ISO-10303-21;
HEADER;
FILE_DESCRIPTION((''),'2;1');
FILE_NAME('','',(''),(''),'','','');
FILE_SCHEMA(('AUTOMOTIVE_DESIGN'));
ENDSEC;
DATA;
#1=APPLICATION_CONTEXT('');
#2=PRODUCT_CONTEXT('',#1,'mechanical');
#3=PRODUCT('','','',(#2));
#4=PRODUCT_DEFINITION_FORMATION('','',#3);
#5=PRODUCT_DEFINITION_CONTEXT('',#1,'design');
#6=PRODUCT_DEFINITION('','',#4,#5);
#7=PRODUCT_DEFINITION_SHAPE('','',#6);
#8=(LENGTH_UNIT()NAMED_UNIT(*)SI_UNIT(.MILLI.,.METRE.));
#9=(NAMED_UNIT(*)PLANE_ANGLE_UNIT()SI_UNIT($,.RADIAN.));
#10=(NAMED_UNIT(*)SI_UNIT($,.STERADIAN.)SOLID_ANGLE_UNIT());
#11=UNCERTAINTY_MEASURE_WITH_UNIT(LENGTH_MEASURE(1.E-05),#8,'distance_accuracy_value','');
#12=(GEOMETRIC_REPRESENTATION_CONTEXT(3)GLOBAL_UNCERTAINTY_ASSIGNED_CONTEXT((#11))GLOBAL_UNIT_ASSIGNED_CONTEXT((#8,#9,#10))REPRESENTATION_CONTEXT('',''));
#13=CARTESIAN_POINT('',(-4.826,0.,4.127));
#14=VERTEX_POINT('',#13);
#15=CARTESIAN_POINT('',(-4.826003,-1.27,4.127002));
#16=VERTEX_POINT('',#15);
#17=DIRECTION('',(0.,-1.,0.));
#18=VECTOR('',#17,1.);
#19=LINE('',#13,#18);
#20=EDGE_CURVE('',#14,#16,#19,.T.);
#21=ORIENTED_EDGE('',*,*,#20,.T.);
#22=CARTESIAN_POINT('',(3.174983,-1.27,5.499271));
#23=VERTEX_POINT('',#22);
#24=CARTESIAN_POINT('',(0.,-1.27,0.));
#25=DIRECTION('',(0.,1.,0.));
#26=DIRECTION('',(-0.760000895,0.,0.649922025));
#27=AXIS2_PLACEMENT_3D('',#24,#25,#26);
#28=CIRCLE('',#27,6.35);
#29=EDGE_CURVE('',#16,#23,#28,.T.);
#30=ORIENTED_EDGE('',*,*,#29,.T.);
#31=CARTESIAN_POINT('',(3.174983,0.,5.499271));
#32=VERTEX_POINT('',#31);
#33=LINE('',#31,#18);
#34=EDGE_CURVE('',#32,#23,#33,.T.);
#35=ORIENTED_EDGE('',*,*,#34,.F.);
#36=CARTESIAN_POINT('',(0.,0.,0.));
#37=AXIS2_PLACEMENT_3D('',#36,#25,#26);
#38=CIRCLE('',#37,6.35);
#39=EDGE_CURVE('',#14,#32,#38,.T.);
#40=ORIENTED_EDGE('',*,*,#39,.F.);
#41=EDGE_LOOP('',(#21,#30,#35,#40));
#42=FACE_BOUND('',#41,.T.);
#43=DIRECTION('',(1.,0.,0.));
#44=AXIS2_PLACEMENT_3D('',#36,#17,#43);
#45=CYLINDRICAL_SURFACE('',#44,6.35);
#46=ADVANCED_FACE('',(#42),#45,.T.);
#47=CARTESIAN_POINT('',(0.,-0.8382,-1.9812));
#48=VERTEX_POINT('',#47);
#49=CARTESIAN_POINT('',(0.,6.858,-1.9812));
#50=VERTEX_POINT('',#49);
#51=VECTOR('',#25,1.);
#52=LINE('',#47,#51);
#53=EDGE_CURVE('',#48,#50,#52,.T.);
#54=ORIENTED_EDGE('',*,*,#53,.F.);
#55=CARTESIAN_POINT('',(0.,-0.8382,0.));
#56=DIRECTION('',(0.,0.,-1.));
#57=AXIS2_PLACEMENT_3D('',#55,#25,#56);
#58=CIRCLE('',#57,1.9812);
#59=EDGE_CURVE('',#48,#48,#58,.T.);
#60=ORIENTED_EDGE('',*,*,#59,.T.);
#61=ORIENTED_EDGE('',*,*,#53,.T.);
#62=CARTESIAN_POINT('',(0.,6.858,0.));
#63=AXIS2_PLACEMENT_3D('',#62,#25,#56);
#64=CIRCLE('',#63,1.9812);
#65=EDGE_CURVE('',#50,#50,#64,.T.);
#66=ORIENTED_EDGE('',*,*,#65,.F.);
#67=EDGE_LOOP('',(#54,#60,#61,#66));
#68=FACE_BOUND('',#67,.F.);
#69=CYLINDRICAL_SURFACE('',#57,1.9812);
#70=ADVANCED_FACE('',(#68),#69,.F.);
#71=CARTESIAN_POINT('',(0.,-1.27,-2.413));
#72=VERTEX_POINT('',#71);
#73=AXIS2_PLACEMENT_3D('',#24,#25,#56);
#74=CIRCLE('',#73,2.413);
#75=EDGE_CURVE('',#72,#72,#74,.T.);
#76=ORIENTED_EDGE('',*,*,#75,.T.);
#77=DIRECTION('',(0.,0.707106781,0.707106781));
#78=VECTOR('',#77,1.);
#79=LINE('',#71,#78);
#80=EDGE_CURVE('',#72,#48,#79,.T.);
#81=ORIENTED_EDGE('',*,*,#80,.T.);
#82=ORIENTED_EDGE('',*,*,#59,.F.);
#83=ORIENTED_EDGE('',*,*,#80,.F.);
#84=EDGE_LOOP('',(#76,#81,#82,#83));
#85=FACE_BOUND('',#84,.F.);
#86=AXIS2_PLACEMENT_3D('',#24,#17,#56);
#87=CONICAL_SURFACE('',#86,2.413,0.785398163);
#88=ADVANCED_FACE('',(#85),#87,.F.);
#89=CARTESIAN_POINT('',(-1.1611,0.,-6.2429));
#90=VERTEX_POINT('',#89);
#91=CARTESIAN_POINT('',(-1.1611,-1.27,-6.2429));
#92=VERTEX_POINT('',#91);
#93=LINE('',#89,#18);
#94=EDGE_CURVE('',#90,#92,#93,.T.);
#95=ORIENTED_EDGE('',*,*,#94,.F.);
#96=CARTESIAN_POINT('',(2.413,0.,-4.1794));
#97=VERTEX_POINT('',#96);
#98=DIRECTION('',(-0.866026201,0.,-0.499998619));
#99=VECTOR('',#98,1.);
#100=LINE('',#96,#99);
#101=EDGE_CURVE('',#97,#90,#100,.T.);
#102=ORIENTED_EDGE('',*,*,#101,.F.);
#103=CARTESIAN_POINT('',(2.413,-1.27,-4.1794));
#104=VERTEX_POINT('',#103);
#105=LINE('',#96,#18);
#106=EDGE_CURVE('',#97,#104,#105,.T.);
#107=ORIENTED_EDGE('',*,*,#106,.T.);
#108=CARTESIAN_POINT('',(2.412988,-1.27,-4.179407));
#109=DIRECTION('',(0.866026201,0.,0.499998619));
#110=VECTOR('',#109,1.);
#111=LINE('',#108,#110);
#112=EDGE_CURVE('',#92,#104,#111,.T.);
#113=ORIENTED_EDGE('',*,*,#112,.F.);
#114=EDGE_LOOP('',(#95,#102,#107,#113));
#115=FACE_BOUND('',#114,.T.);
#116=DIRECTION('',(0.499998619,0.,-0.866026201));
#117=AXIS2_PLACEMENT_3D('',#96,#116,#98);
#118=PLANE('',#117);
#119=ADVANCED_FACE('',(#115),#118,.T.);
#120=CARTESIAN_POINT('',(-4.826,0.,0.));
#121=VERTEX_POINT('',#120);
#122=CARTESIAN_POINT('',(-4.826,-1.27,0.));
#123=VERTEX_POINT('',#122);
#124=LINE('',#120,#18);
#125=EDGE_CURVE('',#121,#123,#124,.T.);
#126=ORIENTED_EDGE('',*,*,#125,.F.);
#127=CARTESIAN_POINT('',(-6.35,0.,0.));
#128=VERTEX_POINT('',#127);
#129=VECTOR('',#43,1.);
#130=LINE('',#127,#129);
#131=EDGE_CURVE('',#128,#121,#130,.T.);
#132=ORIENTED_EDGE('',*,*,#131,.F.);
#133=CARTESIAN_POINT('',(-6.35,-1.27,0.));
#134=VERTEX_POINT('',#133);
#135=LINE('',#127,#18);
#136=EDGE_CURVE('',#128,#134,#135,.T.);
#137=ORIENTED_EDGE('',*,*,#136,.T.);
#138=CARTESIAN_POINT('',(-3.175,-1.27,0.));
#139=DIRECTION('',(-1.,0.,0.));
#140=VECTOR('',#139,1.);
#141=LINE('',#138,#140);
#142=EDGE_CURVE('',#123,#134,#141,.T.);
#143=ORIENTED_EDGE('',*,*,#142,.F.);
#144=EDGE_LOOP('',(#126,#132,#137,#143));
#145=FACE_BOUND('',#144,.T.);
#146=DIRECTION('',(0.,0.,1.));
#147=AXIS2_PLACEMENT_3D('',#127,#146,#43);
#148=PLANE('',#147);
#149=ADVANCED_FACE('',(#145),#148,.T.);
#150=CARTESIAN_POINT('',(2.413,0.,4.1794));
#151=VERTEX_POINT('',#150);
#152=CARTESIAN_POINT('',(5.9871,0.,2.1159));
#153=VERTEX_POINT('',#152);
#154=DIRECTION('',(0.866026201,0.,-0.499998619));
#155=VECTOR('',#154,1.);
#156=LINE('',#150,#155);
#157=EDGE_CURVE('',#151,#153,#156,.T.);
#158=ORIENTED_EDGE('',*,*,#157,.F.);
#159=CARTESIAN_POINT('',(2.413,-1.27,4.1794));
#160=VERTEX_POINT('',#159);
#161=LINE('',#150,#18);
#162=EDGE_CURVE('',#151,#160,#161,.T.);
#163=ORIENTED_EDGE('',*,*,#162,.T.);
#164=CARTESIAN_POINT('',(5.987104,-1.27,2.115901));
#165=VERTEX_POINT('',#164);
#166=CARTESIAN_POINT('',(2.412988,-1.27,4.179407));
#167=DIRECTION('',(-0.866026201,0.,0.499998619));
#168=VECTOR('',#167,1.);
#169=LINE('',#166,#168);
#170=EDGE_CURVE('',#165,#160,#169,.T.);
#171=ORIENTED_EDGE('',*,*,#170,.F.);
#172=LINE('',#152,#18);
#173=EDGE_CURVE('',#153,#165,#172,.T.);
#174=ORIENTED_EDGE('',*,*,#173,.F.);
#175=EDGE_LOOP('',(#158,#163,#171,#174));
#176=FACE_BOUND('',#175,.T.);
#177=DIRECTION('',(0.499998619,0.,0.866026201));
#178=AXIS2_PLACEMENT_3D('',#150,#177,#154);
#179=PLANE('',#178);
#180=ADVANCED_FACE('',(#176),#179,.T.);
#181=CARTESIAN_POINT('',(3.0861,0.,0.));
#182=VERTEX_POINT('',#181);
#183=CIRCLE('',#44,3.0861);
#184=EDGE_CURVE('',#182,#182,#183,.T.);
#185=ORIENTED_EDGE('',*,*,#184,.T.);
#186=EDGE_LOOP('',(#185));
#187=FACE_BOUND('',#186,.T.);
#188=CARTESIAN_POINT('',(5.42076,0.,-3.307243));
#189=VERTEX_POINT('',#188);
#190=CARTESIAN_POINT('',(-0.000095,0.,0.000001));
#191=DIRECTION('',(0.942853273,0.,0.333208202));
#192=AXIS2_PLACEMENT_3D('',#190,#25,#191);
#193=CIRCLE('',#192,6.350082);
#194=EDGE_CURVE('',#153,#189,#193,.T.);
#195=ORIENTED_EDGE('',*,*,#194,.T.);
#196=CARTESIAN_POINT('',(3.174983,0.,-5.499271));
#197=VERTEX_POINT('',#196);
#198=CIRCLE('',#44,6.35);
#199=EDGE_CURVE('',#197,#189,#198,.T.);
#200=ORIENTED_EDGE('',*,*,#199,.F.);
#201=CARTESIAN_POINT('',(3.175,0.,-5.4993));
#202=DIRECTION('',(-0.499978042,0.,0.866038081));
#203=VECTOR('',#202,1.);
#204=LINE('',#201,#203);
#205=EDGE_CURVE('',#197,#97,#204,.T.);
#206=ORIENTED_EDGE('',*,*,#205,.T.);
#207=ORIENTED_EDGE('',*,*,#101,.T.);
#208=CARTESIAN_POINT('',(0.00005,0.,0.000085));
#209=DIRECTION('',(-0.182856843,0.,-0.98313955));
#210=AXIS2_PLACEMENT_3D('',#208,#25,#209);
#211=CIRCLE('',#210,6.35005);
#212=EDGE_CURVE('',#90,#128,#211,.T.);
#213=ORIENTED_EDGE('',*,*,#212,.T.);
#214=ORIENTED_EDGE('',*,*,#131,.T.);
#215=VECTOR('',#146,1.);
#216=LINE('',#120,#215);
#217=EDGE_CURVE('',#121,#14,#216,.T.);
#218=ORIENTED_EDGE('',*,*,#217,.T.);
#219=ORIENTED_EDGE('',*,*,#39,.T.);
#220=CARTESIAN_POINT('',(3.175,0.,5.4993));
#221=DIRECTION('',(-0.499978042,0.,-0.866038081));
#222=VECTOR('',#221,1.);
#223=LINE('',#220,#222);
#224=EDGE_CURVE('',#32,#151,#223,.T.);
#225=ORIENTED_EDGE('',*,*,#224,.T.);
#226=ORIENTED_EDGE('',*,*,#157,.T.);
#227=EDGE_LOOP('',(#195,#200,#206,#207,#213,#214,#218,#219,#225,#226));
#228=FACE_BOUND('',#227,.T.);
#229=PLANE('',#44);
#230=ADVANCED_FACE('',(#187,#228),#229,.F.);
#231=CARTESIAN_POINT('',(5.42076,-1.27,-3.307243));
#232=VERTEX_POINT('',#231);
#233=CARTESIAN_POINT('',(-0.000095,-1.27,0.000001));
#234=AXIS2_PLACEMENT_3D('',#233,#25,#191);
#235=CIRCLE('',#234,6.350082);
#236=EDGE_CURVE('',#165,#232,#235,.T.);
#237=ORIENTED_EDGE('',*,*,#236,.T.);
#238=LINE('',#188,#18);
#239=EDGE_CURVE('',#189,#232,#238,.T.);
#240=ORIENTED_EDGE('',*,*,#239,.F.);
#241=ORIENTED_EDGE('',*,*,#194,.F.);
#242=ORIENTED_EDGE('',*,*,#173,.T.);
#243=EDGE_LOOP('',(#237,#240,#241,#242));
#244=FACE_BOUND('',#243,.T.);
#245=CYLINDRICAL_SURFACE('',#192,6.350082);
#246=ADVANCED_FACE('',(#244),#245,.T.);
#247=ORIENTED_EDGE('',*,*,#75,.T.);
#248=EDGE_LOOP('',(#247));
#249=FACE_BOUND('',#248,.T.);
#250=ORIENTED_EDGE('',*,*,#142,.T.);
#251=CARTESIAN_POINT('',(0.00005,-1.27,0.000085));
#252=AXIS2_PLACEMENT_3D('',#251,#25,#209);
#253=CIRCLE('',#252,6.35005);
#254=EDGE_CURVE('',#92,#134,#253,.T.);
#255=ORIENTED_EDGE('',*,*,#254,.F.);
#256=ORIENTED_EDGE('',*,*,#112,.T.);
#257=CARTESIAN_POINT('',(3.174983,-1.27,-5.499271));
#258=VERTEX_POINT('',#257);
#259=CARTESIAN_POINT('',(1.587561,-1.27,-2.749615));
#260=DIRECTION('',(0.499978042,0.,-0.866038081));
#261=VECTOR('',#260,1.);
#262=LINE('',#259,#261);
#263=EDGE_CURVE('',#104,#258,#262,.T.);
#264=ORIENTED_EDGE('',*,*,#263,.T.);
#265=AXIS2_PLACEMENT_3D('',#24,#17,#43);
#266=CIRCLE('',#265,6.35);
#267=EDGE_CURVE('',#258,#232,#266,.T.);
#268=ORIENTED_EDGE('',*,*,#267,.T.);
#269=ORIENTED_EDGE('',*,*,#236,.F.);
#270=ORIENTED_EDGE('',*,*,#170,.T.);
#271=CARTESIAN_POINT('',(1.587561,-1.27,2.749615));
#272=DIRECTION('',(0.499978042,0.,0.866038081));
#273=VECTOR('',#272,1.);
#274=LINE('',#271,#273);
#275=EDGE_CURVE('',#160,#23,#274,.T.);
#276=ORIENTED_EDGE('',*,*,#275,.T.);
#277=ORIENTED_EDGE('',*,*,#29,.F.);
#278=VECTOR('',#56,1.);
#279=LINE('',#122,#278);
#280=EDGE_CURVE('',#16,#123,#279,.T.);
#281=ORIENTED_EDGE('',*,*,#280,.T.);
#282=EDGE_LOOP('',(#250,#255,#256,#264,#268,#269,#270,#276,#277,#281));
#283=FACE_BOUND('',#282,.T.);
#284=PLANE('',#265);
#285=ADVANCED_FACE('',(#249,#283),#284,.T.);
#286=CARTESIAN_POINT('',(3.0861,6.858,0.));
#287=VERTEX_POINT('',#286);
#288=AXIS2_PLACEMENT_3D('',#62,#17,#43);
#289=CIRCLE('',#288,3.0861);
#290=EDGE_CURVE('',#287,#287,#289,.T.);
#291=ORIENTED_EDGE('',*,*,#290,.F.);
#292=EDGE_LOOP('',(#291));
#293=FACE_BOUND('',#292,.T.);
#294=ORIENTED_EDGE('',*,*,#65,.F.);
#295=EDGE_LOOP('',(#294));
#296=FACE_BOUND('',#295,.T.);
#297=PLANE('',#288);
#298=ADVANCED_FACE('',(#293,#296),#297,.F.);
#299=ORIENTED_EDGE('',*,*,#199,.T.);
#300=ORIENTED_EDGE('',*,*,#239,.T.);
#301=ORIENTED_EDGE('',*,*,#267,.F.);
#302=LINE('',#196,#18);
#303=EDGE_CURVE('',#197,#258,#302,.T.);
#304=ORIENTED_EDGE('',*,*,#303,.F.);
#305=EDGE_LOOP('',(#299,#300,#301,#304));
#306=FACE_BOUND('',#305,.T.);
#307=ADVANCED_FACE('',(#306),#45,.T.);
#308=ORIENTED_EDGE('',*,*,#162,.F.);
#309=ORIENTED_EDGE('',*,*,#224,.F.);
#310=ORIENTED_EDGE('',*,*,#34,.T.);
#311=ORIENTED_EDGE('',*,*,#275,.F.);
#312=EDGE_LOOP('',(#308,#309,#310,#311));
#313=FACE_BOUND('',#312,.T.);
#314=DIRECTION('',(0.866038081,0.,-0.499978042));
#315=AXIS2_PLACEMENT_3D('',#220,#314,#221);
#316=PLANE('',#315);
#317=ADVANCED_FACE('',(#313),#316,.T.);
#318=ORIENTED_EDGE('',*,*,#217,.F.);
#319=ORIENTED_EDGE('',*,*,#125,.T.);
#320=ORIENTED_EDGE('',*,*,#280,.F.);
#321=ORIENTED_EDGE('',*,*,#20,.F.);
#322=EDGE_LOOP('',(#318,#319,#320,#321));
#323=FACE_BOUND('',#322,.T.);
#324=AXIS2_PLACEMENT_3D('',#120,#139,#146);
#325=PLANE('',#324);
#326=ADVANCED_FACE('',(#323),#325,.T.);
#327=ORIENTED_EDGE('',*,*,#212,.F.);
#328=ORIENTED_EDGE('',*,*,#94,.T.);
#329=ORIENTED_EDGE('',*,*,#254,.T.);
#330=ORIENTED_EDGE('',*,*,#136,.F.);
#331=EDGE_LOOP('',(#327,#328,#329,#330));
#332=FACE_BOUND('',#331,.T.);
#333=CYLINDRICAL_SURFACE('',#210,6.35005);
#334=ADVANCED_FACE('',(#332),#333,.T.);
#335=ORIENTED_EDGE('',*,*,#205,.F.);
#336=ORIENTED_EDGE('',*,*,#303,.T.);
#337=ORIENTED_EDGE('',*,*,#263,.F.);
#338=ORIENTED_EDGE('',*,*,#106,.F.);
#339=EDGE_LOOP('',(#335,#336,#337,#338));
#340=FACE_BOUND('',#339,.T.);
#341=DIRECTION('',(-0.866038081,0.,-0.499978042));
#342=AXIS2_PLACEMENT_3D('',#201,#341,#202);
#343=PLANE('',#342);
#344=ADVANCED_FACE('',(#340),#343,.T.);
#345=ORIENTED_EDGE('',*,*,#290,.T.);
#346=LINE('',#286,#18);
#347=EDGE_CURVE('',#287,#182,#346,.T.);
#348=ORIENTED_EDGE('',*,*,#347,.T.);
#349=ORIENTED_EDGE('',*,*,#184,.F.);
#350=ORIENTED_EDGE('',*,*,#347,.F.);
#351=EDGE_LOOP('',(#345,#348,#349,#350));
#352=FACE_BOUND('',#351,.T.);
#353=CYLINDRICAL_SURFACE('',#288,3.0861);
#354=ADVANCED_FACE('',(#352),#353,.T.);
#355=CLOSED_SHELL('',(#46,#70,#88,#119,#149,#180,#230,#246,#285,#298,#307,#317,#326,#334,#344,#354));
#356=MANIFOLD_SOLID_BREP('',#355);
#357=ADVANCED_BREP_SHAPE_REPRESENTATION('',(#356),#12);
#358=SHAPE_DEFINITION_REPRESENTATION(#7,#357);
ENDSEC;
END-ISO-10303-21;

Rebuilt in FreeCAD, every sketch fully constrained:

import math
import FreeCAD as App
import Part
import Sketcher
Q = App.Units.Quantity

doc = App.newDocument("Part")
body = doc.addObject("PartDesign::Body", "Body")

sketch1 = body.newObject("Sketcher::SketchObject", "Sketch")
sketch1.AttachmentSupport = (doc.getObject("XY_Plane"), [""])
sketch1.MapMode = "FlatFace"
sketch1.addGeometry([
    Part.LineSegment(App.Vector(0, 6.9, 0), App.Vector(0, -1.3, 0)),
    Part.LineSegment(App.Vector(0, -1.3, 0), App.Vector(6.3, -1.3, 0)),
    Part.LineSegment(App.Vector(6.3, -1.3, 0), App.Vector(6.3, 0, 0)),
    Part.LineSegment(App.Vector(6.3, 0, 0), App.Vector(3.1, 0, 0)),
    Part.LineSegment(App.Vector(3.1, 0, 0), App.Vector(3.1, 6.9, 0)),
    Part.LineSegment(App.Vector(3.1, 6.9, 0), App.Vector(0, 6.9, 0)),
], False)
sketch1.addConstraint([
    Sketcher.Constraint("Coincident", 0, 2, 1, 1),
    Sketcher.Constraint("Coincident", 1, 2, 2, 1),
    Sketcher.Constraint("Coincident", 2, 2, 3, 1),
    Sketcher.Constraint("Coincident", 3, 2, 4, 1),
    Sketcher.Constraint("Coincident", 4, 2, 5, 1),
    Sketcher.Constraint("Coincident", 5, 2, 0, 1),
    Sketcher.Constraint("Vertical", 0),
    Sketcher.Constraint("Horizontal", 1),
    Sketcher.Constraint("Vertical", 2),
    Sketcher.Constraint("Horizontal", 3),
    Sketcher.Constraint("Vertical", 4),
    Sketcher.Constraint("Horizontal", 5),
    Sketcher.Constraint("PointOnObject", 0, 2, -2),
    Sketcher.Constraint("PointOnObject", 2, 2, -1),
    Sketcher.Constraint("DistanceX", 1, 1, 1, 2, Q("0.25 in")),
    Sketcher.Constraint("DistanceY", 0, 2, 0, 1, Q("0.32 in")),
    Sketcher.Constraint("DistanceY", 2, 1, 2, 2, Q("0.05 in")),
    Sketcher.Constraint("DistanceX", 3, 2, 3, 1, Q("0.1285 in")),
])
revolution = body.newObject("PartDesign::Revolution", "Revolution")
revolution.Profile = sketch1
revolution.ReferenceAxis = (sketch1, ["V_Axis"])
revolution.Angle = 360

sketch2 = body.newObject("Sketcher::SketchObject", "Sketch001")
sketch2.AttachmentSupport = (doc.getObject("XZ_Plane"), [""])
sketch2.MapMode = "FlatFace"
sketch2.AttachmentOffset = App.Placement(App.Vector(0, 0, 0.05 * 25.4), App.Rotation())
sketch2.addGeometry(Part.Circle(App.Vector(0, 0, 0), App.Vector(0, 0, 1), 2), False)
sketch2.addConstraint([
    Sketcher.Constraint("Coincident", 0, 3, -1, 1),
    Sketcher.Constraint("Diameter", 0, Q("0.156 in")),
])
doc.recompute()
hole = body.newObject("PartDesign::Hole", "Hole")
hole.Profile = sketch2
hole.ThreadType = "None"
hole.Diameter = Q("0.156 in")
hole.DepthType = "Dimension"
hole.Depth = Q("0.32 in")
hole.DrillPoint = "Flat"
hole.HoleCutType = "Countersink"
hole.HoleCutDiameter = Q("0.19 in")
hole.HoleCutCountersinkAngle = 90

sketch3 = body.newObject("Sketcher::SketchObject", "Sketch002")
sketch3.AttachmentSupport = (doc.getObject("XZ_Plane"), [""])
sketch3.MapMode = "FlatFace"
sketch3.addGeometry([
    Part.Circle(App.Vector(0, 0, 0), App.Vector(0, 0, 1), 8.9),
    Part.LineSegment(App.Vector(-4.8, 0, 0), App.Vector(-6.3, 0, 0)),
    Part.ArcOfCircle(Part.Circle(App.Vector(0, 0, 0), App.Vector(0, 0, 1), 6.3), math.radians(180), math.radians(259)),
    Part.LineSegment(App.Vector(-1.2, -6.2, 0), App.Vector(2.4, -4.2, 0)),
    Part.LineSegment(App.Vector(2.4, -4.2, 0), App.Vector(3.2, -5.5, 0)),
    Part.ArcOfCircle(Part.Circle(App.Vector(0, 0, 0), App.Vector(0, 0, 1), 6.3), math.radians(-60), math.radians(19)),
    Part.LineSegment(App.Vector(6, 2.1, 0), App.Vector(2.4, 4.2, 0)),
    Part.LineSegment(App.Vector(2.4, 4.2, 0), App.Vector(3.2, 5.5, 0)),
    Part.ArcOfCircle(Part.Circle(App.Vector(0, 0, 0), App.Vector(0, 0, 1), 6.3), math.radians(60), math.radians(139)),
    Part.LineSegment(App.Vector(-4.8, 4.1, 0), App.Vector(-4.8, 0, 0)),
], False)
sketch3.addConstraint([
    Sketcher.Constraint("Coincident", 1, 2, 2, 1),
    Sketcher.Constraint("Coincident", 2, 2, 3, 1),
    Sketcher.Constraint("Coincident", 3, 2, 4, 1),
    Sketcher.Constraint("Coincident", 4, 2, 5, 1),
    Sketcher.Constraint("Coincident", 5, 2, 6, 1),
    Sketcher.Constraint("Coincident", 6, 2, 7, 1),
    Sketcher.Constraint("Coincident", 7, 2, 8, 1),
    Sketcher.Constraint("Coincident", 8, 2, 9, 1),
    Sketcher.Constraint("Coincident", 9, 2, 1, 1),
    Sketcher.Constraint("Horizontal", 1),
    Sketcher.Constraint("Vertical", 9),
    Sketcher.Constraint("Coincident", 0, 3, -1, 1),
    Sketcher.Constraint("Coincident", 2, 3, -1, 1),
    Sketcher.Constraint("Coincident", 5, 3, -1, 1),
    Sketcher.Constraint("Coincident", 8, 3, -1, 1),
    Sketcher.Constraint("Equal", 2, 5),
    Sketcher.Constraint("Equal", 5, 8),
    Sketcher.Constraint("Symmetric", 3, 2, 6, 2, -1),
    Sketcher.Constraint("PointOnObject", 1, 2, -1),
    Sketcher.Constraint("Perpendicular", 3, 4),
    Sketcher.Constraint("Perpendicular", 6, 7),
    Sketcher.Constraint("Vertical", 4, 2, 7, 2),
    Sketcher.Constraint("Equal", 3, 6),
    Sketcher.Constraint("Diameter", 0, Q("0.7 in")),
    Sketcher.Constraint("Radius", 2, Q("0.25 in")),
    Sketcher.Constraint("Angle", 3, Q("30 deg")),
    Sketcher.Constraint("DistanceX", 1, 2, 1, 1, Q("0.06 in")),
    Sketcher.Constraint("Distance", 4, Q("0.06 in")),
])
pocket1 = body.newObject("PartDesign::Pocket", "Pocket")
pocket1.Profile = sketch3
pocket1.Length = Q("0.1 in")
pocket1.Reversed = True

doc.recompute()
